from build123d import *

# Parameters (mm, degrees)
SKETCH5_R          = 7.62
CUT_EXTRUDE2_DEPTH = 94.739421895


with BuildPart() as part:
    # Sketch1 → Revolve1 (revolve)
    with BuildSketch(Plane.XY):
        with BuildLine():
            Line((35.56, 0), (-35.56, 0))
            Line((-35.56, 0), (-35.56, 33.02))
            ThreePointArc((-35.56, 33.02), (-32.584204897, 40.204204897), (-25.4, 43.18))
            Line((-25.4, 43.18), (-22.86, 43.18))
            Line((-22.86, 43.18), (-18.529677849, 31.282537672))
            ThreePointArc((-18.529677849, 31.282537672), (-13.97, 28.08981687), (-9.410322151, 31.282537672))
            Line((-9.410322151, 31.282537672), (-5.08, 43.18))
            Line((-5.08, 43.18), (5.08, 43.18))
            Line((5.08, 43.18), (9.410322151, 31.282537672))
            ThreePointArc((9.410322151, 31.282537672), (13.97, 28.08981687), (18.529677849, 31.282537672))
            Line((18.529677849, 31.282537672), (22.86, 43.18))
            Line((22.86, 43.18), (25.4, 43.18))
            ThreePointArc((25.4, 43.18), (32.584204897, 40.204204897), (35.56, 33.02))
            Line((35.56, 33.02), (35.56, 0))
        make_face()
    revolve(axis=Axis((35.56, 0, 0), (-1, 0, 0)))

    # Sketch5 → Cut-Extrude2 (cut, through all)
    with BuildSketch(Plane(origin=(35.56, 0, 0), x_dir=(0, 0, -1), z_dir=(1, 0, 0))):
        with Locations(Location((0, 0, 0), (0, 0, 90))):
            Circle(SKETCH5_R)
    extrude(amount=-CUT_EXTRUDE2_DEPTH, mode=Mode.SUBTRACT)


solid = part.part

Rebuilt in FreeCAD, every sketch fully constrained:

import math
import FreeCAD as App
import Part
import Sketcher
from FreeCAD import Vector
Q = App.Units.Quantity

doc = App.newDocument("Part")
body = doc.addObject("PartDesign::Body", "Body")

sketch1 = body.newObject("Sketcher::SketchObject", "Sketch")
sketch1.AttachmentSupport = (doc.getObject("XY_Plane"), [""])
sketch1.MapMode = "FlatFace"
sketch1.addGeometry([
    Part.LineSegment(Vector(-35.6, 0, 0), Vector(35.6, 0, 0)),
    Part.LineSegment(Vector(35.6, 0, 0), Vector(35.6, 33, 0)),
    Part.ArcOfCircle(Part.Circle(Vector(25.4, 33, 0), Vector(0, 0, 1), 10.2), math.radians(0), math.radians(90)),
    Part.LineSegment(Vector(25.4, 43.2, 0), Vector(22.9, 43.2, 0)),
    Part.LineSegment(Vector(22.9, 43.2, 0), Vector(18.5, 31.3, 0)),
    Part.ArcOfCircle(Part.Circle(Vector(14, 32.9, 0), Vector(0, 0, 1), 4.9), math.radians(-160), math.radians(-20)),
    Part.LineSegment(Vector(9.4, 31.3, 0), Vector(5.1, 43.2, 0)),
    Part.LineSegment(Vector(5.1, 43.2, 0), Vector(-5.1, 43.2, 0)),
    Part.LineSegment(Vector(-5.1, 43.2, 0), Vector(-9.4, 31.3, 0)),
    Part.ArcOfCircle(Part.Circle(Vector(-14, 32.9, 0), Vector(0, 0, 1), 4.9), math.radians(-160), math.radians(-20)),
    Part.LineSegment(Vector(-18.5, 31.3, 0), Vector(-22.9, 43.2, 0)),
    Part.LineSegment(Vector(-22.9, 43.2, 0), Vector(-25.4, 43.2, 0)),
    Part.ArcOfCircle(Part.Circle(Vector(-25.4, 33, 0), Vector(0, 0, 1), 10.2), math.radians(90), math.radians(180)),
    Part.LineSegment(Vector(-35.6, 33, 0), Vector(-35.6, 0, 0)),
], False)
sketch1.addConstraint([
    Sketcher.Constraint("Coincident", 0, 2, 1, 1),
    Sketcher.Constraint("Tangent", 1, 2, 2, 1),
    Sketcher.Constraint("Tangent", 2, 2, 3, 1),
    Sketcher.Constraint("Coincident", 3, 2, 4, 1),
    Sketcher.Constraint("Tangent", 4, 2, 5, 2),
    Sketcher.Constraint("Tangent", 5, 1, 6, 1),
    Sketcher.Constraint("Coincident", 6, 2, 7, 1),
    Sketcher.Constraint("Coincident", 7, 2, 8, 1),
    Sketcher.Constraint("Tangent", 8, 2, 9, 2),
    Sketcher.Constraint("Tangent", 9, 1, 10, 1),
    Sketcher.Constraint("Coincident", 10, 2, 11, 1),
    Sketcher.Constraint("Tangent", 11, 2, 12, 1),
    Sketcher.Constraint("Tangent", 12, 2, 13, 1),
    Sketcher.Constraint("Coincident", 13, 2, 0, 1),
    Sketcher.Constraint("Horizontal", 0),
    Sketcher.Constraint("Vertical", 1),
    Sketcher.Constraint("Horizontal", 3),
    Sketcher.Constraint("Horizontal", 7),
    Sketcher.Constraint("Horizontal", 11),
    Sketcher.Constraint("Vertical", 13),
    Sketcher.Constraint("Equal", 5, 9),
    Sketcher.Constraint("Equal", 2, 12),
    Sketcher.Constraint("Symmetric", 0, 2, 13, 2, -1, 1),
    Sketcher.Constraint("Symmetric", 5, 3, 9, 3, -2),
    Sketcher.Constraint("Symmetric", 3, 2, 10, 2, -2),
    Sketcher.Constraint("Parallel", 4, 8),
    Sketcher.Constraint("Parallel", 6, 10),
    Sketcher.Constraint("Horizontal", 3, 2, 6, 2),
    Sketcher.Constraint("Radius", 2, Q("0.4 in")),
    Sketcher.Constraint("DistanceX", 0, 1, 0, 2, Q("2.8 in")),
    Sketcher.Constraint("DistanceX", 3, 2, 3, 1, Q("0.1 in")),
    Sketcher.Constraint("DistanceX", 7, 2, 7, 1, Q("0.4 in")),
    Sketcher.Constraint("DistanceY", 1, 1, 1, 2, Q("1.3 in")),
    Sketcher.Constraint("Angle", 4, Q("-110 deg")),
    Sketcher.Constraint("Radius", 5, 4.852308),
])
revolution = body.newObject("PartDesign::Revolution", "Revolution")
revolution.Profile = sketch1
revolution.ReferenceAxis = (sketch1, ["H_Axis"])
revolution.Angle = 360

sketch2 = body.newObject("Sketcher::SketchObject", "Sketch001")
sketch2.AttachmentSupport = (doc.getObject("YZ_Plane"), [""])
sketch2.MapMode = "FlatFace"
sketch2.AttachmentOffset = App.Placement(Vector(0, 0, 1.4 * 25.4), App.Rotation())
sketch2.addGeometry(Part.Circle(Vector(0, 0, 0), Vector(0, 0, 1), 8), False)
sketch2.addConstraint([
    Sketcher.Constraint("Coincident", 0, 3, -1, 1),
    Sketcher.Constraint("Diameter", 0, Q("0.6 in")),
])
pocket1 = body.newObject("PartDesign::Pocket", "Pocket")
pocket1.Profile = sketch2
pocket1.Type = "ThroughAll"

doc.recompute()
